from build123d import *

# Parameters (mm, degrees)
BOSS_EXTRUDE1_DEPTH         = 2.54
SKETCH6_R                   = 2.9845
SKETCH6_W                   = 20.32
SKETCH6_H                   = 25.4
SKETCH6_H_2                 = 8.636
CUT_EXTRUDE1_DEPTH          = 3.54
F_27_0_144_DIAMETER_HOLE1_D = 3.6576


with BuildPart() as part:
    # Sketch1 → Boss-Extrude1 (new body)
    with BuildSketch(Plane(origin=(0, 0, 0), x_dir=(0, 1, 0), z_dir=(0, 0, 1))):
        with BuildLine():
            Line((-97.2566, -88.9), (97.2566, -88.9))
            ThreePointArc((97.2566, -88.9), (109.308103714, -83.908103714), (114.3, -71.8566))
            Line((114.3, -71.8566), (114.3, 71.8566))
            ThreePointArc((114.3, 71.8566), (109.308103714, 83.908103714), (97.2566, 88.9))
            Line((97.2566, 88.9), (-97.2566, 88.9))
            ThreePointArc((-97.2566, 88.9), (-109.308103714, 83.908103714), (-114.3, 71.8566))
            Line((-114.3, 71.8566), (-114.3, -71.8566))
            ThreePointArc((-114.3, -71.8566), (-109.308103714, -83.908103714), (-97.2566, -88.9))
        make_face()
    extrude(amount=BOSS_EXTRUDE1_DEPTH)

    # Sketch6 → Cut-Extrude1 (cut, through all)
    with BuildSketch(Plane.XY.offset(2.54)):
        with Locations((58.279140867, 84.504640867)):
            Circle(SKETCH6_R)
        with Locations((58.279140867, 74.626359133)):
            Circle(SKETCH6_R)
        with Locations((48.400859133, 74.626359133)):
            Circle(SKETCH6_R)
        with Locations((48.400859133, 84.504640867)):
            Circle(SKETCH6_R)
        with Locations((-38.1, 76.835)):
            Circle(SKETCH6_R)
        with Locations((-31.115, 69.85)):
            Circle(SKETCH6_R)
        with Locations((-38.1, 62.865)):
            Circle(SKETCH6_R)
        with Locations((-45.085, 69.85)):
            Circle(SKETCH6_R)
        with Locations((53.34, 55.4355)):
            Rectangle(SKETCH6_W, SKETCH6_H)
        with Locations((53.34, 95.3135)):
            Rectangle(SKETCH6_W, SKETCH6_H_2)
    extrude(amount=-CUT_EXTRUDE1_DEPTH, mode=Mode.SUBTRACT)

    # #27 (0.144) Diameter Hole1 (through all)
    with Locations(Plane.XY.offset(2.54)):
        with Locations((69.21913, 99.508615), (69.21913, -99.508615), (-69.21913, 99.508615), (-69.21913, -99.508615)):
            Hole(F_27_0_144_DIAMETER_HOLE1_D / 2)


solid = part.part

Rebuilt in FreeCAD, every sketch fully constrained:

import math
import FreeCAD as App
import Part
import Sketcher
Q = App.Units.Quantity

doc = App.newDocument("Part")
body = doc.addObject("PartDesign::Body", "Body")

# Sketch on XY plane
sketch1 = body.newObject("Sketcher::SketchObject", "Sketch")
sketch1.AttachmentSupport = (doc.getObject("XY_Plane"), [""])
sketch1.MapMode = "FlatFace"
sketch1.addGeometry([
    Part.LineSegment(App.Vector(89, -97, 0), App.Vector(89, 97, 0)),  # 0
    Part.ArcOfCircle(Part.Circle(App.Vector(72, 97, 0), App.Vector(0, 0, 1), 17), math.radians(0), math.radians(90)),  # 1
    Part.LineSegment(App.Vector(72, 114, 0), App.Vector(-72, 114, 0)),  # 2
    Part.ArcOfCircle(Part.Circle(App.Vector(-72, 97, 0), App.Vector(0, 0, 1), 17), math.radians(90), math.radians(180)),  # 3
    Part.LineSegment(App.Vector(-89, 97, 0), App.Vector(-89, -97, 0)),  # 4
    Part.ArcOfCircle(Part.Circle(App.Vector(-72, -97, 0), App.Vector(0, 0, 1), 17), math.radians(-180), math.radians(-90)),  # 5
    Part.LineSegment(App.Vector(-72, -114, 0), App.Vector(72, -114, 0)),  # 6
    Part.ArcOfCircle(Part.Circle(App.Vector(72, -97, 0), App.Vector(0, 0, 1), 17), math.radians(-90), math.radians(0)),  # 7
], False)
sketch1.addConstraint([
    Sketcher.Constraint("Tangent", 0, 2, 1, 1),
    Sketcher.Constraint("Tangent", 1, 2, 2, 1),
    Sketcher.Constraint("Tangent", 2, 2, 3, 1),
    Sketcher.Constraint("Tangent", 3, 2, 4, 1),
    Sketcher.Constraint("Tangent", 4, 2, 5, 1),
    Sketcher.Constraint("Tangent", 5, 2, 6, 1),
    Sketcher.Constraint("Tangent", 6, 2, 7, 1),
    Sketcher.Constraint("Tangent", 7, 2, 0, 1),
    Sketcher.Constraint("Vertical", 0),
    Sketcher.Constraint("Horizontal", 2),
    Sketcher.Constraint("Vertical", 4),
    Sketcher.Constraint("Horizontal", 6),
    Sketcher.Constraint("Equal", 1, 3),
    Sketcher.Constraint("Equal", 3, 5),
    Sketcher.Constraint("Equal", 5, 7),
    Sketcher.Constraint("Symmetric", 1, 3, 5, 3, -1, 1),
    Sketcher.Constraint("Radius", 1, Q("0.671 in")),
    Sketcher.Constraint("DistanceX", 3, 2, 0, 2, Q("7 in")),
    Sketcher.Constraint("DistanceY", -1, 1, 1, 2, Q("4.5 in")),
])
pad1 = body.newObject("PartDesign::Pad", "Pad")
pad1.Profile = sketch1
pad1.Length = Q("0.1 in")

# Sketch on XY plane
sketch2 = body.newObject("Sketcher::SketchObject", "Sketch001")
sketch2.AttachmentSupport = (doc.getObject("XY_Plane"), [""])
sketch2.MapMode = "FlatFace"
sketch2.AttachmentOffset = App.Placement(App.Vector(0, 0, 0.1 * 25.4), App.Rotation())
sketch2.addGeometry([
    Part.Circle(App.Vector(58.3, 84.5, 0), App.Vector(0, 0, 1), 3),  # 0
    Part.Circle(App.Vector(58.3, 74.6, 0), App.Vector(0, 0, 1), 3),  # 1
    Part.Circle(App.Vector(48.4, 74.6, 0), App.Vector(0, 0, 1), 3),  # 2
    Part.Circle(App.Vector(48.4, 84.5, 0), App.Vector(0, 0, 1), 3),  # 3
    Part.Circle(App.Vector(-38.1, 76.8, 0), App.Vector(0, 0, 1), 3),  # 4
    Part.Circle(App.Vector(-31.1, 69.8, 0), App.Vector(0, 0, 1), 3),  # 5
    Part.Circle(App.Vector(-38.1, 62.9, 0), App.Vector(0, 0, 1), 3),  # 6
    Part.Circle(App.Vector(-45.1, 69.8, 0), App.Vector(0, 0, 1), 3),  # 7
    Part.LineSegment(App.Vector(43.2, 68.1, 0), App.Vector(43.2, 42.7, 0)),  # 8
    Part.LineSegment(App.Vector(43.2, 42.7, 0), App.Vector(63.5, 42.7, 0)),  # 9
    Part.LineSegment(App.Vector(63.5, 42.7, 0), App.Vector(63.5, 68.1, 0)),  # 10
    Part.LineSegment(App.Vector(63.5, 68.1, 0), App.Vector(43.2, 68.1, 0)),  # 11
    Part.LineSegment(App.Vector(43.2, 99.6, 0), App.Vector(43.2, 91, 0)),  # 12
    Part.LineSegment(App.Vector(43.2, 91, 0), App.Vector(63.5, 91, 0)),  # 13
    Part.LineSegment(App.Vector(63.5, 91, 0), App.Vector(63.5, 99.6, 0)),  # 14
    Part.LineSegment(App.Vector(63.5, 99.6, 0), App.Vector(43.2, 99.6, 0)),  # 15
], False)
sketch2.addConstraint([
    Sketcher.Constraint("Coincident", 8, 2, 9, 1),
    Sketcher.Constraint("Coincident", 9, 2, 10, 1),
    Sketcher.Constraint("Coincident", 10, 2, 11, 1),
    Sketcher.Constraint("Coincident", 11, 2, 8, 1),
    Sketcher.Constraint("Coincident", 12, 2, 13, 1),
    Sketcher.Constraint("Coincident", 13, 2, 14, 1),
    Sketcher.Constraint("Coincident", 14, 2, 15, 1),
    Sketcher.Constraint("Coincident", 15, 2, 12, 1),
    Sketcher.Constraint("Vertical", 8),
    Sketcher.Constraint("Horizontal", 9),
    Sketcher.Constraint("Vertical", 10),
    Sketcher.Constraint("Horizontal", 11),
    Sketcher.Constraint("Vertical", 12),
    Sketcher.Constraint("Horizontal", 13),
    Sketcher.Constraint("Vertical", 14),
    Sketcher.Constraint("Horizontal", 15),
    Sketcher.Constraint("Equal", 0, 1),
    Sketcher.Constraint("Equal", 1, 2),
    Sketcher.Constraint("Equal", 2, 3),
    Sketcher.Constraint("Equal", 3, 4),
    Sketcher.Constraint("Equal", 4, 5),
    Sketcher.Constraint("Equal", 5, 6),
    Sketcher.Constraint("Equal", 6, 7),
    Sketcher.Constraint("Horizontal", 1, 3, 2, 3),
    Sketcher.Constraint("Horizontal", 0, 3, 3, 3),
    Sketcher.Constraint("Horizontal", 5, 3, 7, 3),
    Sketcher.Constraint("Vertical", 0, 3, 1, 3),
    Sketcher.Constraint("Vertical", 2, 3, 3, 3),
    Sketcher.Constraint("Vertical", 4, 3, 6, 3),
    Sketcher.Constraint("Vertical", 11, 2, 12, 2),
    Sketcher.Constraint("Vertical", 10, 2, 13, 2),
    Sketcher.Constraint("DistanceY", 8, 2, 8, 1, Q("1 in")),
    Sketcher.Constraint("Diameter", 0, Q("0.235 in")),
    Sketcher.Constraint("DistanceX", 9, 1, 9, 2, Q("0.8 in")),
    Sketcher.Constraint("DistanceY", 12, 2, 12, 1, Q("0.34 in")),
    Sketcher.Constraint("DistanceX", 4, 3, -1, 1, Q("1.5 in")),
    Sketcher.Constraint("DistanceX", -1, 1, 8, 2, Q("1.7 in")),
    Sketcher.Constraint("DistanceY", 11, 2, 12, 2, Q("0.9 in")),
    Sketcher.Constraint("DistanceY", -1, 1, 5, 3, Q("2.75 in")),
    Sketcher.Constraint("DistanceY", 6, 3, 4, 3, Q("0.55 in")),
    Sketcher.Constraint("DistanceX", 7, 3, 5, 3, Q("0.55 in")),
    Sketcher.Constraint("DistanceY", -1, 1, 4, 3, Q("3.025 in")),
    Sketcher.Constraint("DistanceX", 5, 3, -1, 1, Q("1.225 in")),
    Sketcher.Constraint("DistanceY", -1, 1, 8, 2, Q("1.6825 in")),
    Sketcher.Constraint("DistanceX", -1, 1, 0, 3, Q("58.279141 mm")),
    Sketcher.Constraint("DistanceY", -1, 1, 0, 3, Q("84.504641 mm")),
    Sketcher.Constraint("DistanceY", -1, 1, 1, 3, Q("74.626359 mm")),
    Sketcher.Constraint("DistanceX", -1, 1, 2, 3, Q("48.400859 mm")),
])
pocket1 = body.newObject("PartDesign::Pocket", "Pocket")
pocket1.Profile = sketch2
pocket1.Type = "ThroughAll"

# Sketch on XY plane
sketch3 = body.newObject("Sketcher::SketchObject", "Sketch002")
sketch3.AttachmentSupport = (doc.getObject("XY_Plane"), [""])
sketch3.MapMode = "FlatFace"
sketch3.AttachmentOffset = App.Placement(App.Vector(0, 0, 0.1 * 25.4), App.Rotation())
sketch3.addGeometry([
    Part.Circle(App.Vector(69.2, 99.5, 0), App.Vector(0, 0, 1), 1.8),
    Part.Circle(App.Vector(69.2, -99.5, 0), App.Vector(0, 0, 1), 1.8),
    Part.Circle(App.Vector(-69.2, 99.5, 0), App.Vector(0, 0, 1), 1.8),
    Part.Circle(App.Vector(-69.2, -99.5, 0), App.Vector(0, 0, 1), 1.8),
], False)
sketch3.addConstraint([
    Sketcher.Constraint("Equal", 0, 1),
    Sketcher.Constraint("Equal", 1, 2),
    Sketcher.Constraint("Equal", 2, 3),
    Sketcher.Constraint("Symmetric", 1, 3, 2, 3, -1, 1),
    Sketcher.Constraint("Symmetric", 0, 3, 3, 3, -1, 1),
    Sketcher.Constraint("Symmetric", 0, 3, 2, 3, -2),
    Sketcher.Constraint("Diameter", 0, Q("0.144 in")),
    Sketcher.Constraint("DistanceX", -1, 1, 0, 3, Q("69.21913 mm")),
    Sketcher.Constraint("DistanceY", 1, 3, 0, 3, Q("199.01723 mm")),
])
doc.recompute()
hole = body.newObject("PartDesign::Hole", "Hole")
hole.Profile = sketch3
hole.ThreadType = "None"
hole.Diameter = Q("0.144 in")
hole.DepthType = "ThroughAll"

doc.recompute()
